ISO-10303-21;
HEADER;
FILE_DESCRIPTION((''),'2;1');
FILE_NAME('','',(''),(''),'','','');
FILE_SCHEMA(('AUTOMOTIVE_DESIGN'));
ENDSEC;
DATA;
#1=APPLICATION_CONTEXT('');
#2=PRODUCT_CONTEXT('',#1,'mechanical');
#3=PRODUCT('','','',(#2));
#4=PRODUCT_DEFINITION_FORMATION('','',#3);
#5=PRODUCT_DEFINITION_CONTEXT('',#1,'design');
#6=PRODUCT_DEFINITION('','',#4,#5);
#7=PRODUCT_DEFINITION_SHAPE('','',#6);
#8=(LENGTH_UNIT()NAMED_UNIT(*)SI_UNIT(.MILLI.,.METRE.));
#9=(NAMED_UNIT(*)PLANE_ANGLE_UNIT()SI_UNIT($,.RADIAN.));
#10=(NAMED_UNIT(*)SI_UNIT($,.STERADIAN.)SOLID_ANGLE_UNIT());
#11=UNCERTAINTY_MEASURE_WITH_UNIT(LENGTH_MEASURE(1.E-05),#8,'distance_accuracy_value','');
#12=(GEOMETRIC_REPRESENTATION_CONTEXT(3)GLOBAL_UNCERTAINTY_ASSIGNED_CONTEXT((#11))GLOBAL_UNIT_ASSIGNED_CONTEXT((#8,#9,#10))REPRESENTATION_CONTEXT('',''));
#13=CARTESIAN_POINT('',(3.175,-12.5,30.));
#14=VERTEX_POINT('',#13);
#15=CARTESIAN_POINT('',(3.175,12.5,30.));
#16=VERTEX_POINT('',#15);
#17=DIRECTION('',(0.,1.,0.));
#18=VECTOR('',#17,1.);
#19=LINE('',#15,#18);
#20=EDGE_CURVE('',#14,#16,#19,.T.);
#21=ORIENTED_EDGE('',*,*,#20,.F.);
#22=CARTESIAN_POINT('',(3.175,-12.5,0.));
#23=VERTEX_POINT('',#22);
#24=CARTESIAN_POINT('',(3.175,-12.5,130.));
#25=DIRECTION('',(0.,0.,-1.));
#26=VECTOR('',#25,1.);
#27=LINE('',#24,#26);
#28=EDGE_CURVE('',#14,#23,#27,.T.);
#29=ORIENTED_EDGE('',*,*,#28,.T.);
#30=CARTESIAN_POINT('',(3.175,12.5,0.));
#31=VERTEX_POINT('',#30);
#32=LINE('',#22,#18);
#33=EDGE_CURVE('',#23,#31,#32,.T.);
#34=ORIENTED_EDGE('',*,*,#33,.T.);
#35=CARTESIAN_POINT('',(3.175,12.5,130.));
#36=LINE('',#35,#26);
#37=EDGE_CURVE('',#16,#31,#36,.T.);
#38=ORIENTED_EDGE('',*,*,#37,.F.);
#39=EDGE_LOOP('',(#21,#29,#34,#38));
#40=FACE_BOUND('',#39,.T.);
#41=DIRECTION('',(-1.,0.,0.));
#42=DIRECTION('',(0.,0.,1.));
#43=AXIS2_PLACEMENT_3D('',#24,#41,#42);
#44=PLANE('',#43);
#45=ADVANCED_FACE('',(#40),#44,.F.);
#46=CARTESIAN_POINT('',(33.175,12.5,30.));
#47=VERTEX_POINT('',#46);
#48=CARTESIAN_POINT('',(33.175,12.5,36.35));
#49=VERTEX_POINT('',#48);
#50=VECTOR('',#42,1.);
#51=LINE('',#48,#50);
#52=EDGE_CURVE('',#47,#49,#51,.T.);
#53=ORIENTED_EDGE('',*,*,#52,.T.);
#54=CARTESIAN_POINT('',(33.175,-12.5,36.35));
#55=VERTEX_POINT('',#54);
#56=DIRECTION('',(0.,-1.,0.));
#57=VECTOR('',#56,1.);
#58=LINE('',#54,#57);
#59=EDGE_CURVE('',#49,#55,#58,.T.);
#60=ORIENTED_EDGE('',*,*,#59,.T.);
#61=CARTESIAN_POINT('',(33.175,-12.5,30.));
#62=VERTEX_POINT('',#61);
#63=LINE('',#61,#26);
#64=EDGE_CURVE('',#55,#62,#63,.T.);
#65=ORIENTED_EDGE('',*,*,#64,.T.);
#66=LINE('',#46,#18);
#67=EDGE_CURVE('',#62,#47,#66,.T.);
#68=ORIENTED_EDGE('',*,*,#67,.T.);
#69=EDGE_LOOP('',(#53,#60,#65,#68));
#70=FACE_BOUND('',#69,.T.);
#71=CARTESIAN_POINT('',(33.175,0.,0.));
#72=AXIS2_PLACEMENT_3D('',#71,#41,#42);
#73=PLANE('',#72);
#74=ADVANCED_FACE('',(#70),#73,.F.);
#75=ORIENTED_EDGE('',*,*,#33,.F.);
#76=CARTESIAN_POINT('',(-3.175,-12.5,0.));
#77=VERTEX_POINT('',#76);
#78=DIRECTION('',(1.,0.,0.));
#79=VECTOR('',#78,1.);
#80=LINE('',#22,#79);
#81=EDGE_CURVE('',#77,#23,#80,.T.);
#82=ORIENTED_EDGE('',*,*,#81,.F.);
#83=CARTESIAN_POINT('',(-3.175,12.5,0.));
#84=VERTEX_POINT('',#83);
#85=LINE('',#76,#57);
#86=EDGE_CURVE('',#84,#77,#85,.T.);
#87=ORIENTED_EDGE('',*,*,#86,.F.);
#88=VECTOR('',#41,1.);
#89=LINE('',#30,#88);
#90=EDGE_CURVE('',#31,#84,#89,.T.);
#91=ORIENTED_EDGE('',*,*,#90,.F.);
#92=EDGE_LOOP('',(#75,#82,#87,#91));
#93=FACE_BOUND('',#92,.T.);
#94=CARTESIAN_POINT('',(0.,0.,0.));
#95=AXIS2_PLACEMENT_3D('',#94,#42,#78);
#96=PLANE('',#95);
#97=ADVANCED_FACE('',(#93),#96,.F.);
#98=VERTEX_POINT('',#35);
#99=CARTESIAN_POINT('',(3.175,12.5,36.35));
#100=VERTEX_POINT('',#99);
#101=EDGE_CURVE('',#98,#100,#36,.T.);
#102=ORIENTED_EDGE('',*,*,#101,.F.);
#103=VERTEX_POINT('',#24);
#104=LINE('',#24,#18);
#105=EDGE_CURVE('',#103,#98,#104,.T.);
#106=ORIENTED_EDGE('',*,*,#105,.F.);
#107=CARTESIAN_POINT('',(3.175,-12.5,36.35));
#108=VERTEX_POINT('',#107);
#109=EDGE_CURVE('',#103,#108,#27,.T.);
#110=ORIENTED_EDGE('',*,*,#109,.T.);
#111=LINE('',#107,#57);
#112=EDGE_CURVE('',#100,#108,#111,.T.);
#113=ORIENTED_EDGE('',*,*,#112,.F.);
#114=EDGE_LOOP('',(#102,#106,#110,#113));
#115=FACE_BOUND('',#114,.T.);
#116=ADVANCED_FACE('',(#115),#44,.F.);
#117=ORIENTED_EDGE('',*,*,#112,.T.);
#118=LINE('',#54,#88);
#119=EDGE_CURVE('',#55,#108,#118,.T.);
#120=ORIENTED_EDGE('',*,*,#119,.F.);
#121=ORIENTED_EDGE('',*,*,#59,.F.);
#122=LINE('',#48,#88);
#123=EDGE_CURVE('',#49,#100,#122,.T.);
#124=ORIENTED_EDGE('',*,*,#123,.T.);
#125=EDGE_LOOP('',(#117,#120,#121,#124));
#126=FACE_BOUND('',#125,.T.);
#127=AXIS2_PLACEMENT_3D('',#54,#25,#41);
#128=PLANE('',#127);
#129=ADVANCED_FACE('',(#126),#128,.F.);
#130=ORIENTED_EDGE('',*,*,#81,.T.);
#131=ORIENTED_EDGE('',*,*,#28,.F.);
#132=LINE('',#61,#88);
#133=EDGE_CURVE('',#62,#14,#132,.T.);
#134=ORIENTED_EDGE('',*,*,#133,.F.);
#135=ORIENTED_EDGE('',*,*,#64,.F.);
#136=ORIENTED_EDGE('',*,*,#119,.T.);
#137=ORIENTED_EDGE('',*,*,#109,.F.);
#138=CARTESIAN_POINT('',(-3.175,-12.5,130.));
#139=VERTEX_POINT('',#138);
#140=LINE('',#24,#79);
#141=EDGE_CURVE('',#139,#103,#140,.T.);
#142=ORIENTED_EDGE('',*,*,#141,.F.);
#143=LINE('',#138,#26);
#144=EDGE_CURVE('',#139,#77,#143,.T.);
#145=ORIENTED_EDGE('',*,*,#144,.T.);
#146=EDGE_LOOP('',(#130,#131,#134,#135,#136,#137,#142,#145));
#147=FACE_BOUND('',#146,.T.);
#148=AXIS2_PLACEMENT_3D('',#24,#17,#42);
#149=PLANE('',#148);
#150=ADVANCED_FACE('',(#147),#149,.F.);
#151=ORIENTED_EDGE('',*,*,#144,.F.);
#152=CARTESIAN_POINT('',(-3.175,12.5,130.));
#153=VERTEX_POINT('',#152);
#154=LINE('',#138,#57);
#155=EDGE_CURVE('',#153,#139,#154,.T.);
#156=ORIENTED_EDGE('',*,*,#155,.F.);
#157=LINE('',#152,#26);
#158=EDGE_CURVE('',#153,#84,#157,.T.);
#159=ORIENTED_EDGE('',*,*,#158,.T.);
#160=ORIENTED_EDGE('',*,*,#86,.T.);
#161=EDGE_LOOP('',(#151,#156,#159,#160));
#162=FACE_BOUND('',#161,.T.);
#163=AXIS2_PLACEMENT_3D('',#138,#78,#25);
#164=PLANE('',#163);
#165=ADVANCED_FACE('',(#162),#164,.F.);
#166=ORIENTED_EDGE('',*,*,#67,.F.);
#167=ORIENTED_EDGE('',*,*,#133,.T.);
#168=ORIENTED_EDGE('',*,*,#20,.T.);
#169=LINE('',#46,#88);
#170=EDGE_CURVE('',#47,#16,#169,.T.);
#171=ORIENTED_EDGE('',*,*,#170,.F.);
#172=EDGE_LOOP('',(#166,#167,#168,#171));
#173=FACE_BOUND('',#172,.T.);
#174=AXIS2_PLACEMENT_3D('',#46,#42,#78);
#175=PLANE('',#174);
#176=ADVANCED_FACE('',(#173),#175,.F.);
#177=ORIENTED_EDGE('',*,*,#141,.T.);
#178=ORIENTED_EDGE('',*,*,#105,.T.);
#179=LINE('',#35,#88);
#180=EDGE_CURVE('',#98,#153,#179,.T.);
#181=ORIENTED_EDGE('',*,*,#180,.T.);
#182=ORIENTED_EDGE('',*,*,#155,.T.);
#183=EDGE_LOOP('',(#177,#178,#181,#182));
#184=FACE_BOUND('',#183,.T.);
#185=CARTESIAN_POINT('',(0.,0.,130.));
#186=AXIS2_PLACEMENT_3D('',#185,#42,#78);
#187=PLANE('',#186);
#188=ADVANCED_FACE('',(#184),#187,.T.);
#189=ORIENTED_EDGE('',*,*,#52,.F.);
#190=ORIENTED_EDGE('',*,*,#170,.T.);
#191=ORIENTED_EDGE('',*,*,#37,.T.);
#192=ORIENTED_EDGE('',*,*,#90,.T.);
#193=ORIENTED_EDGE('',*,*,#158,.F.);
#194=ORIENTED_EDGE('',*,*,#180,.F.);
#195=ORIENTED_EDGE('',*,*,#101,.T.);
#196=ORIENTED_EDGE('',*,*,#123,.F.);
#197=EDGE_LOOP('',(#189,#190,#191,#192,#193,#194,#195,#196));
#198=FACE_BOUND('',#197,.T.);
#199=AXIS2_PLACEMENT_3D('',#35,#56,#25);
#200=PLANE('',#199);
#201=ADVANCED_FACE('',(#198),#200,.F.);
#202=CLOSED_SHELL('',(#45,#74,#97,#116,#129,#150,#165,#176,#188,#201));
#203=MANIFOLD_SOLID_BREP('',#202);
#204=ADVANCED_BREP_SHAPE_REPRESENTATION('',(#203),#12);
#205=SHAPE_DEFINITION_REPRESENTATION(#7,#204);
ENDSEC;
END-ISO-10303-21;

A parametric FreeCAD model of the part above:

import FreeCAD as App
import Part
import Sketcher
from FreeCAD import Vector
Q = App.Units.Quantity

doc = App.newDocument("Part")
body = doc.addObject("PartDesign::Body", "Body")

# Sketch on XY plane
sketch1 = doc.addObject("Sketcher::SketchObject", "Sketch")
body.addObject(sketch1)
sketch1.AttachmentSupport = (doc.XY_Plane, [""])
sketch1.MapMode = "FlatFace"
sketch1.addGeometry([
    Part.LineSegment(Vector(-3, 12, 0), Vector(-3, -12, 0)),
    Part.LineSegment(Vector(-3, -12, 0), Vector(3, -12, 0)),
    Part.LineSegment(Vector(3, -12, 0), Vector(3, 12, 0)),
    Part.LineSegment(Vector(3, 12, 0), Vector(-3, 12, 0)),
], False)
sketch1.addConstraint([
    Sketcher.Constraint("Coincident", 0, 2, 1, 1),
    Sketcher.Constraint("Coincident", 1, 2, 2, 1),
    Sketcher.Constraint("Coincident", 2, 2, 3, 1),
    Sketcher.Constraint("Coincident", 3, 2, 0, 1),
    Sketcher.Constraint("Vertical", 0),
    Sketcher.Constraint("Horizontal", 1),
    Sketcher.Constraint("Vertical", 2),
    Sketcher.Constraint("Horizontal", 3),
    Sketcher.Constraint("Symmetric", 0, 2, 2, 2, -1, 1),
    Sketcher.Constraint("DistanceY", 0, 2, 0, 1, Q("25 mm")),
    Sketcher.Constraint("DistanceX", 1, 1, 1, 2, Q("6.35 mm")),
])
pad1 = doc.addObject("PartDesign::Pad", "Pad")
body.addObject(pad1)
pad1.Profile = sketch1
pad1.Length = 130

# Sketch on YZ plane
sketch2 = doc.addObject("Sketcher::SketchObject", "Sketch001")
body.addObject(sketch2)
sketch2.AttachmentSupport = (doc.YZ_Plane, [""])
sketch2.MapMode = "FlatFace"
sketch2.AttachmentOffset = App.Placement(Vector(0, 0, 3.175), App.Rotation())
sketch2.addGeometry([
    Part.LineSegment(Vector(12, 36, 0), Vector(-12, 36, 0)),
    Part.LineSegment(Vector(-12, 36, 0), Vector(-12, 30, 0)),
    Part.LineSegment(Vector(-12, 30, 0), Vector(12, 30, 0)),
    Part.LineSegment(Vector(12, 30, 0), Vector(12, 36, 0)),
], False)
sketch2.addConstraint([
    Sketcher.Constraint("Coincident", 0, 2, 1, 1),
    Sketcher.Constraint("Coincident", 1, 2, 2, 1),
    Sketcher.Constraint("Coincident", 2, 2, 3, 1),
    Sketcher.Constraint("Coincident", 3, 2, 0, 1),
    Sketcher.Constraint("Horizontal", 0),
    Sketcher.Constraint("Vertical", 1),
    Sketcher.Constraint("Horizontal", 2),
    Sketcher.Constraint("Vertical", 3),
    Sketcher.Constraint("DistanceX", 0, 2, 0, 1, Q("25 mm")),
    Sketcher.Constraint("DistanceY", -1, 1, 1, 2, Q("30 mm")),
    Sketcher.Constraint("DistanceY", 1, 2, 1, 1, Q("6.35 mm")),
    Sketcher.Constraint("DistanceX", 0, 2, -1, 1, Q("12.5 mm")),
])
pad2 = doc.addObject("PartDesign::Pad", "Pad001")
body.addObject(pad2)
pad2.Profile = sketch2
pad2.Length = 30

doc.recompute()
